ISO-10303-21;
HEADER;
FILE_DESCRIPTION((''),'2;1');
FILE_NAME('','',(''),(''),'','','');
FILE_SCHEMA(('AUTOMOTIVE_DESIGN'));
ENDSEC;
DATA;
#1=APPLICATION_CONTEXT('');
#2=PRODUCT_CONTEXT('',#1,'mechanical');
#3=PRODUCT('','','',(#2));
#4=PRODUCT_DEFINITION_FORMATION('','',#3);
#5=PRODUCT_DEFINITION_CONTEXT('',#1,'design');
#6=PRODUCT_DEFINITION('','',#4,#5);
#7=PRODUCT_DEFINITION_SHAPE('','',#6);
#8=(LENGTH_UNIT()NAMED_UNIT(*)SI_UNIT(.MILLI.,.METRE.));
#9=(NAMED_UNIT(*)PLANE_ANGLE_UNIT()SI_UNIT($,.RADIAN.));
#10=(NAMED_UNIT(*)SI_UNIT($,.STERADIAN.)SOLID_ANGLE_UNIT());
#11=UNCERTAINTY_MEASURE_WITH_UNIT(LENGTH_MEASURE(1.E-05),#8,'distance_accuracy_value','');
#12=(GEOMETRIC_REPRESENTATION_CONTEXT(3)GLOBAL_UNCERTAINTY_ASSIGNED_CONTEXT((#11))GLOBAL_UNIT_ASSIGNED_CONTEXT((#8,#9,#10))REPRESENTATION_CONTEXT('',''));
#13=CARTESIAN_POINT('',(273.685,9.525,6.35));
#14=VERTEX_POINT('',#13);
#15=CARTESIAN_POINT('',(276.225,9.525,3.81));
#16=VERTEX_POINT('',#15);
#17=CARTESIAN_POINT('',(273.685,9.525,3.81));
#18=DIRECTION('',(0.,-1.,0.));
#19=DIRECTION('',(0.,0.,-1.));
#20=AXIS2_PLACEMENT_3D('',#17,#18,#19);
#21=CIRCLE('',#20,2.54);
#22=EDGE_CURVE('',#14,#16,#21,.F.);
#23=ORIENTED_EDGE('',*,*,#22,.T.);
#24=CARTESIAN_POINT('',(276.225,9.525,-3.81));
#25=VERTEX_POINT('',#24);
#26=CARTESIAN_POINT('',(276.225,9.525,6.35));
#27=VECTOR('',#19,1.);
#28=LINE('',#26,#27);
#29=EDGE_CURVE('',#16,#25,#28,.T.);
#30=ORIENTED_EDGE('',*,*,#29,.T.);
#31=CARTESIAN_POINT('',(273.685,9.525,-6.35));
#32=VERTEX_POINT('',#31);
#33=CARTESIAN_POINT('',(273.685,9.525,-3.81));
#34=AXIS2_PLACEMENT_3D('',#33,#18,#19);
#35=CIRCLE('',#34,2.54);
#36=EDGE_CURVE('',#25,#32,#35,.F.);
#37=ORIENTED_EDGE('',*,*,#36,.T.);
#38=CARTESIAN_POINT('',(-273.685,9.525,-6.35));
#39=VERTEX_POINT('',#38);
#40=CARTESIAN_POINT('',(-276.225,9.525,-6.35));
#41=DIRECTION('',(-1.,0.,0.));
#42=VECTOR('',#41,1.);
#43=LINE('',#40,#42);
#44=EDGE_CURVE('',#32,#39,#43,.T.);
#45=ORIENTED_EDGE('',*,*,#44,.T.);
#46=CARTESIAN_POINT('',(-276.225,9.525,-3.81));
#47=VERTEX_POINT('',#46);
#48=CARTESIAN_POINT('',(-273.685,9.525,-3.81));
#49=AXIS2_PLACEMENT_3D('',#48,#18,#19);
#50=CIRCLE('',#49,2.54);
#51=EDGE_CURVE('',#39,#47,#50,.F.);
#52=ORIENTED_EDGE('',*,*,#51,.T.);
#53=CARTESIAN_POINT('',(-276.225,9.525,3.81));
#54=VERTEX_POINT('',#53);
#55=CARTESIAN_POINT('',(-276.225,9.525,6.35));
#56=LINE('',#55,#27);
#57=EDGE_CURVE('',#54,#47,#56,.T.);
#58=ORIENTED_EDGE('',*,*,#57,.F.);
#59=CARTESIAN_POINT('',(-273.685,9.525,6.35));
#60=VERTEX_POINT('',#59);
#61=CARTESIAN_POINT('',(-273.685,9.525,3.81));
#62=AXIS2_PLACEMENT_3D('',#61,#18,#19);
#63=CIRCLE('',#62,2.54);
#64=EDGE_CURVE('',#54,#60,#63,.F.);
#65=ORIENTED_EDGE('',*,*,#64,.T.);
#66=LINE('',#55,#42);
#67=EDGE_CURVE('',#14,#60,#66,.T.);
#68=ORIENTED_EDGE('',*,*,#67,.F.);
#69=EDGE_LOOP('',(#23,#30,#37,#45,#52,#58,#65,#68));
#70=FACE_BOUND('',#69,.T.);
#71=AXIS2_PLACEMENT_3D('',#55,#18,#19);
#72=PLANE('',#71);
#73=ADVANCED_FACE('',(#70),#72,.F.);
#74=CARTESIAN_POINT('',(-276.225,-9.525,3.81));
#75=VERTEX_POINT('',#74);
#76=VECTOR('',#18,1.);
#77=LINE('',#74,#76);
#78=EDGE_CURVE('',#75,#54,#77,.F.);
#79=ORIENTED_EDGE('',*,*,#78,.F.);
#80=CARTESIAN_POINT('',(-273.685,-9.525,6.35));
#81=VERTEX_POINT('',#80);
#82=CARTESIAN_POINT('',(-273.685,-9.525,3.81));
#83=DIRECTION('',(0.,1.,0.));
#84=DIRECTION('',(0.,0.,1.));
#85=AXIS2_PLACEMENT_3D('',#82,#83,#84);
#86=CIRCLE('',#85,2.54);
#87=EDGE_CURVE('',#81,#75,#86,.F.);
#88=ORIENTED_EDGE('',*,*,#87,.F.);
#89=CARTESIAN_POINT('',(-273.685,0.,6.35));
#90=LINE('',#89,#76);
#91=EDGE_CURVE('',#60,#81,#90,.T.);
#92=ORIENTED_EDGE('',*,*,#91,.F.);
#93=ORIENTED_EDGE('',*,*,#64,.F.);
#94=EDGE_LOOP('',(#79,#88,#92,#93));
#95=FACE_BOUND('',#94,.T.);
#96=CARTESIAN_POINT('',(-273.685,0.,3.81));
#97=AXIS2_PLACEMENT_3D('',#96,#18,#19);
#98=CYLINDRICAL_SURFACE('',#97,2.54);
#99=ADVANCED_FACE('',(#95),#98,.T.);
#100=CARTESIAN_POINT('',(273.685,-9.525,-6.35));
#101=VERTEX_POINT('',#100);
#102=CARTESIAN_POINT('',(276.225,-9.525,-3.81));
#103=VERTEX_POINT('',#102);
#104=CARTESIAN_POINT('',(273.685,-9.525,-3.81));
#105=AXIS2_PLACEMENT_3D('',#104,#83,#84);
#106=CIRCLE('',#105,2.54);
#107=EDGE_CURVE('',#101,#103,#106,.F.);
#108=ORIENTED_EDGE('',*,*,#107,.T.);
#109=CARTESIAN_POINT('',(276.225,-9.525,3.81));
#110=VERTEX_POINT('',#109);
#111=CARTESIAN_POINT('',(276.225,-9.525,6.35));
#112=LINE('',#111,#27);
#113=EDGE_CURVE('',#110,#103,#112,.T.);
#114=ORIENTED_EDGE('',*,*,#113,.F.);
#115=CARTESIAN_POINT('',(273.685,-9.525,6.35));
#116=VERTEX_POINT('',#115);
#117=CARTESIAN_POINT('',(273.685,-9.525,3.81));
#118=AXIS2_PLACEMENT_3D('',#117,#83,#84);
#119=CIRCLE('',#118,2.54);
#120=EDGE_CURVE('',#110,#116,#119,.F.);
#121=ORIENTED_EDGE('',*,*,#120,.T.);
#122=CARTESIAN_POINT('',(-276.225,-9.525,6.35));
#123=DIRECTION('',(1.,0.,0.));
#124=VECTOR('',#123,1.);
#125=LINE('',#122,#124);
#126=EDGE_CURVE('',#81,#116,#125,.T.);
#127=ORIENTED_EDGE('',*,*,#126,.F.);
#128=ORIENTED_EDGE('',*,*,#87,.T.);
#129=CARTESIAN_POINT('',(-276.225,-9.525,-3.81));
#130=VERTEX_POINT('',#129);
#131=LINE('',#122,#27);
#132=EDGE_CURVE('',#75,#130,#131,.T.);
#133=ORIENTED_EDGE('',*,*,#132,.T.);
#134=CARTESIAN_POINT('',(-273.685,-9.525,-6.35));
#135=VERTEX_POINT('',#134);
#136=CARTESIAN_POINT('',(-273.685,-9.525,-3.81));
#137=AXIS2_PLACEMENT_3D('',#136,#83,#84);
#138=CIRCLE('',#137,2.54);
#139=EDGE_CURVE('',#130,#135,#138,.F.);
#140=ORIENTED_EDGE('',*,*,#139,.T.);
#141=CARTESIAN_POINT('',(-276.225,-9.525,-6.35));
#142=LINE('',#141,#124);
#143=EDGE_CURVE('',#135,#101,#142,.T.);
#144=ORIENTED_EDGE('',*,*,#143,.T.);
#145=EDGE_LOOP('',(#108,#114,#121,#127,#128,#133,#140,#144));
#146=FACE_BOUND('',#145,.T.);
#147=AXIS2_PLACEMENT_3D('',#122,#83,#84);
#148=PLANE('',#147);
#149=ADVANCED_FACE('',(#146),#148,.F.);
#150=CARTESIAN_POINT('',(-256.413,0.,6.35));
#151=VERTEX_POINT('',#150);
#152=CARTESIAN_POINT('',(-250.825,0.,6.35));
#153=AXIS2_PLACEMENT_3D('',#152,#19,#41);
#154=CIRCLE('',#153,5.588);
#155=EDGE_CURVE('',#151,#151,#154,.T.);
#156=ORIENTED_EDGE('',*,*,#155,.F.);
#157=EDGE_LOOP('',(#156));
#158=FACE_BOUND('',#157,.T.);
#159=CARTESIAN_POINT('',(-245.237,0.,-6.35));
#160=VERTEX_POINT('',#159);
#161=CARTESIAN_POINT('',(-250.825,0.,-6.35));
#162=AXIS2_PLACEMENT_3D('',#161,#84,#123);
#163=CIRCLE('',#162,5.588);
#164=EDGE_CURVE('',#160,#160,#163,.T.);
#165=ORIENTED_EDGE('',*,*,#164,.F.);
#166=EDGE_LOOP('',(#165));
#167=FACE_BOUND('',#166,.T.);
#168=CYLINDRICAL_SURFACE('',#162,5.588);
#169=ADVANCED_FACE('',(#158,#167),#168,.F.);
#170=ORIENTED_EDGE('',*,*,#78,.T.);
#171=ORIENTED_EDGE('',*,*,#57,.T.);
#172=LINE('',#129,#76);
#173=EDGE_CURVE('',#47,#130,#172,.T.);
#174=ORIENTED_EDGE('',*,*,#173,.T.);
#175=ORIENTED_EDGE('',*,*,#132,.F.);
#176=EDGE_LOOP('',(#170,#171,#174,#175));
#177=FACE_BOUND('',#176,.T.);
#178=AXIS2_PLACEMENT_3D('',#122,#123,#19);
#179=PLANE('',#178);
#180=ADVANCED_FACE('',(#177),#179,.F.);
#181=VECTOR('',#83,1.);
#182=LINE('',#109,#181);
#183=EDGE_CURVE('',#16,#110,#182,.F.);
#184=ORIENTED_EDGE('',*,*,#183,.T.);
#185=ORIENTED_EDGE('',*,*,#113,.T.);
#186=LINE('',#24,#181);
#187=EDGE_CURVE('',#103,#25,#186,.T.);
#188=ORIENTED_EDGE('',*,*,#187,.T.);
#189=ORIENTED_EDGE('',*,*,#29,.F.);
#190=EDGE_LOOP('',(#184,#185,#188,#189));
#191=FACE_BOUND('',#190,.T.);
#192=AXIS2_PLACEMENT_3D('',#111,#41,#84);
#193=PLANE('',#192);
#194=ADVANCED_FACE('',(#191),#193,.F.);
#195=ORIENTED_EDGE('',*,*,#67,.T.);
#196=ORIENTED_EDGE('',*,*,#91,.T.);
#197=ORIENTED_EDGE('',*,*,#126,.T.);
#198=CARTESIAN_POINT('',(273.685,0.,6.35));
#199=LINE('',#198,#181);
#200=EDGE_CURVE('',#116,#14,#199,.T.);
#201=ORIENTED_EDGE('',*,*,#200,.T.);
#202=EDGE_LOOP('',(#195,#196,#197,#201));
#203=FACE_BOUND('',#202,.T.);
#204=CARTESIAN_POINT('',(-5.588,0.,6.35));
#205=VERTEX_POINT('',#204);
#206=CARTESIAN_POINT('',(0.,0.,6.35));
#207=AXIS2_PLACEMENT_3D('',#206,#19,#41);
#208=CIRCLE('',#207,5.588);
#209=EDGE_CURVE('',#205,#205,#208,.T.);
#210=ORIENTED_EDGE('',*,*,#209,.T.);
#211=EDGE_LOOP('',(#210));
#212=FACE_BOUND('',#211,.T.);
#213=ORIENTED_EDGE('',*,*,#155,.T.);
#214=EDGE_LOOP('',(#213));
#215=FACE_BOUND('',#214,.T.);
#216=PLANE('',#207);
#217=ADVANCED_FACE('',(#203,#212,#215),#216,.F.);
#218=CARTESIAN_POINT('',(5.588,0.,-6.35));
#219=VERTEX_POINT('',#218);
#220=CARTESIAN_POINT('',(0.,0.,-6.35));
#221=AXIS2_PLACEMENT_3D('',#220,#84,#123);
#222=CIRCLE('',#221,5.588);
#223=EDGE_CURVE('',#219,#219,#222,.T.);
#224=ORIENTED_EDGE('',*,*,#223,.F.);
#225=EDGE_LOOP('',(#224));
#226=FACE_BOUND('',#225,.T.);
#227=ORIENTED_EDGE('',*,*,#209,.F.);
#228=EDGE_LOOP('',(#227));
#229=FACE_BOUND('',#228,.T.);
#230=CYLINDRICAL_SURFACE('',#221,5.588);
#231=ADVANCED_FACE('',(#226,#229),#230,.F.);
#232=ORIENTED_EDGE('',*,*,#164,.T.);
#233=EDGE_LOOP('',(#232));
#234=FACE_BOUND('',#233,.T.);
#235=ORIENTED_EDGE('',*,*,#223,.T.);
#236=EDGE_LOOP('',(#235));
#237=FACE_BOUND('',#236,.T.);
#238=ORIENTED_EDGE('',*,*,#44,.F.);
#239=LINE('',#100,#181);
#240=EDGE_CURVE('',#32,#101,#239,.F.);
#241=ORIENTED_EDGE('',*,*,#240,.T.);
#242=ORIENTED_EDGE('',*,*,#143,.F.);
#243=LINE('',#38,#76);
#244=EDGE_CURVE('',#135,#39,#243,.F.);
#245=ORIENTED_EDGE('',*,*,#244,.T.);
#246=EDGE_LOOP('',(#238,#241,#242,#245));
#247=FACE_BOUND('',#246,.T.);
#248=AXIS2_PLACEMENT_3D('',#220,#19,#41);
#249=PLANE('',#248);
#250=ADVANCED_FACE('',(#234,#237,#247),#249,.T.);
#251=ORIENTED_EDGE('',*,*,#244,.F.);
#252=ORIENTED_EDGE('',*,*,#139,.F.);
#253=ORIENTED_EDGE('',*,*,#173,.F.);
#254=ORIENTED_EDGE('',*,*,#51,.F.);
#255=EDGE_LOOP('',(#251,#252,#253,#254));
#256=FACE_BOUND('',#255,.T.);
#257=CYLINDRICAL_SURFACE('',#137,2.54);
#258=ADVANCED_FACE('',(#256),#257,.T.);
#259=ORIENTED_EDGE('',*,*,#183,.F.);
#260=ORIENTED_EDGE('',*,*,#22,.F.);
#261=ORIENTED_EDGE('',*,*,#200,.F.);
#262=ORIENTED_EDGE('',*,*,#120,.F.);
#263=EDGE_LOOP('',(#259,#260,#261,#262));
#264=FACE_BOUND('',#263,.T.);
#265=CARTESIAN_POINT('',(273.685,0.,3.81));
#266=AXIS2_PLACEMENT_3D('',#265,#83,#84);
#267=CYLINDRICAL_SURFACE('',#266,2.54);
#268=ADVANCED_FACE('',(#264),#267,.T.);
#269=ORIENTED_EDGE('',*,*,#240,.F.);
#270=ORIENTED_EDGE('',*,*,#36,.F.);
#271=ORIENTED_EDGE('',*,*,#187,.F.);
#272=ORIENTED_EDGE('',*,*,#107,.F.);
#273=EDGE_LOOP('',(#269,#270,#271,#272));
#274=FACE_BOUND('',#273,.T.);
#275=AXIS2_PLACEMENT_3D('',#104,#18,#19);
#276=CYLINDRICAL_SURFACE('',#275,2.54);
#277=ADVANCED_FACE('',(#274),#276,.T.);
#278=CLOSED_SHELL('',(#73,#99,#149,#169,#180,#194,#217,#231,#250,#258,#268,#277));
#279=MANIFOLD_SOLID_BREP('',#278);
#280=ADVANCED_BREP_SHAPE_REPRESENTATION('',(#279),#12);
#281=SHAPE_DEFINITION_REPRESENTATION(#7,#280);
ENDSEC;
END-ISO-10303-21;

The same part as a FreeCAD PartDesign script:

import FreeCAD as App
import Part
import Sketcher
Q = App.Units.Quantity


def edges_at(feature, points):
    """Names of the edges that pass closest to the given points."""
    edges = feature.Shape.Edges
    near = lambda p: min(range(len(edges)), key=lambda i: edges[i].distToShape(Part.Vertex(*p))[0])
    return sorted({f"Edge{near(p) + 1}" for p in points})


def add_polygon(sketch, points):
    """Adds a closed chain of lines whose ends are joined by coincident constraints."""
    first, n = sketch.GeometryCount, len(points)
    for a, b in zip(points, points[1:] + points[:1]):
        sketch.addGeometry(Part.LineSegment(App.Vector(*a, 0), App.Vector(*b, 0)), False)
    for i in range(n):
        sketch.addConstraint(Sketcher.Constraint("Coincident", first + i, 2, first + (i + 1) % n, 1))

doc = App.newDocument("Part")
body = doc.addObject("PartDesign::Body", "Body")

sketch1 = body.newObject("Sketcher::SketchObject", "Sketch")
sketch1.AttachmentSupport = (doc.getObject("XY_Plane"), [""])
sketch1.MapMode = "FlatFace"
add_polygon(sketch1, [(-276, 10), (-276, -10), (276, -10), (276, 10)])
sketch1.addConstraint(Sketcher.Constraint("Vertical", 0))
sketch1.addConstraint(Sketcher.Constraint("Horizontal", 1))
sketch1.addConstraint(Sketcher.Constraint("Vertical", 2))
sketch1.addConstraint(Sketcher.Constraint("Horizontal", 3))
sketch1.addConstraint(Sketcher.Constraint("Symmetric", 0, 2, 2, 2, -1, 1))
sketch1.addConstraint(Sketcher.Constraint("DistanceX", 1, 1, 1, 2, Q("21.75 in")))
sketch1.addConstraint(Sketcher.Constraint("DistanceY", 0, 2, 0, 1, Q("0.75 in")))
pad1 = body.newObject("PartDesign::Pad", "Pad")
pad1.Profile = sketch1
pad1.Length = Q("0.5 in")
pad1.Midplane = True

sketch2 = body.newObject("Sketcher::SketchObject", "Sketch001")
sketch2.AttachmentSupport = (doc.getObject("XY_Plane"), [""])
sketch2.MapMode = "FlatFace"
sketch2.AttachmentOffset = App.Placement(App.Vector(0, 0, 0.25 * 25.4), App.Rotation())
sketch2.addGeometry(Part.Circle(App.Vector(0, 0, 0), App.Vector(0, 0, 1), 6), False)
sketch2.addGeometry(Part.Circle(App.Vector(-251, 0, 0), App.Vector(0, 0, 1), 6), False)
sketch2.addConstraint(Sketcher.Constraint("Coincident", 0, 3, -1, 1))
sketch2.addConstraint(Sketcher.Constraint("Equal", 0, 1))
sketch2.addConstraint(Sketcher.Constraint("PointOnObject", 1, 3, -1))
sketch2.addConstraint(Sketcher.Constraint("Diameter", 0, Q("0.44 in")))
sketch2.addConstraint(Sketcher.Constraint("DistanceX", 1, 3, -1, 1, Q("9.875 in")))
pocket1 = body.newObject("PartDesign::Pocket", "Pocket")
pocket1.Profile = sketch2
pocket1.Type = "ThroughAll"
pocket1.Midplane = True
doc.recompute()

fillet = body.newObject("PartDesign::Fillet", "Fillet")
fillet.Base = (pocket1, edges_at(pocket1, [
    (-276.225, 0, 6.35),
    (276.225, 0, 6.35),
    (-276.225, 0, -6.35),
    (276.225, 0, -6.35),
]))
fillet.Radius = Q("0.1 in")

doc.recompute()
